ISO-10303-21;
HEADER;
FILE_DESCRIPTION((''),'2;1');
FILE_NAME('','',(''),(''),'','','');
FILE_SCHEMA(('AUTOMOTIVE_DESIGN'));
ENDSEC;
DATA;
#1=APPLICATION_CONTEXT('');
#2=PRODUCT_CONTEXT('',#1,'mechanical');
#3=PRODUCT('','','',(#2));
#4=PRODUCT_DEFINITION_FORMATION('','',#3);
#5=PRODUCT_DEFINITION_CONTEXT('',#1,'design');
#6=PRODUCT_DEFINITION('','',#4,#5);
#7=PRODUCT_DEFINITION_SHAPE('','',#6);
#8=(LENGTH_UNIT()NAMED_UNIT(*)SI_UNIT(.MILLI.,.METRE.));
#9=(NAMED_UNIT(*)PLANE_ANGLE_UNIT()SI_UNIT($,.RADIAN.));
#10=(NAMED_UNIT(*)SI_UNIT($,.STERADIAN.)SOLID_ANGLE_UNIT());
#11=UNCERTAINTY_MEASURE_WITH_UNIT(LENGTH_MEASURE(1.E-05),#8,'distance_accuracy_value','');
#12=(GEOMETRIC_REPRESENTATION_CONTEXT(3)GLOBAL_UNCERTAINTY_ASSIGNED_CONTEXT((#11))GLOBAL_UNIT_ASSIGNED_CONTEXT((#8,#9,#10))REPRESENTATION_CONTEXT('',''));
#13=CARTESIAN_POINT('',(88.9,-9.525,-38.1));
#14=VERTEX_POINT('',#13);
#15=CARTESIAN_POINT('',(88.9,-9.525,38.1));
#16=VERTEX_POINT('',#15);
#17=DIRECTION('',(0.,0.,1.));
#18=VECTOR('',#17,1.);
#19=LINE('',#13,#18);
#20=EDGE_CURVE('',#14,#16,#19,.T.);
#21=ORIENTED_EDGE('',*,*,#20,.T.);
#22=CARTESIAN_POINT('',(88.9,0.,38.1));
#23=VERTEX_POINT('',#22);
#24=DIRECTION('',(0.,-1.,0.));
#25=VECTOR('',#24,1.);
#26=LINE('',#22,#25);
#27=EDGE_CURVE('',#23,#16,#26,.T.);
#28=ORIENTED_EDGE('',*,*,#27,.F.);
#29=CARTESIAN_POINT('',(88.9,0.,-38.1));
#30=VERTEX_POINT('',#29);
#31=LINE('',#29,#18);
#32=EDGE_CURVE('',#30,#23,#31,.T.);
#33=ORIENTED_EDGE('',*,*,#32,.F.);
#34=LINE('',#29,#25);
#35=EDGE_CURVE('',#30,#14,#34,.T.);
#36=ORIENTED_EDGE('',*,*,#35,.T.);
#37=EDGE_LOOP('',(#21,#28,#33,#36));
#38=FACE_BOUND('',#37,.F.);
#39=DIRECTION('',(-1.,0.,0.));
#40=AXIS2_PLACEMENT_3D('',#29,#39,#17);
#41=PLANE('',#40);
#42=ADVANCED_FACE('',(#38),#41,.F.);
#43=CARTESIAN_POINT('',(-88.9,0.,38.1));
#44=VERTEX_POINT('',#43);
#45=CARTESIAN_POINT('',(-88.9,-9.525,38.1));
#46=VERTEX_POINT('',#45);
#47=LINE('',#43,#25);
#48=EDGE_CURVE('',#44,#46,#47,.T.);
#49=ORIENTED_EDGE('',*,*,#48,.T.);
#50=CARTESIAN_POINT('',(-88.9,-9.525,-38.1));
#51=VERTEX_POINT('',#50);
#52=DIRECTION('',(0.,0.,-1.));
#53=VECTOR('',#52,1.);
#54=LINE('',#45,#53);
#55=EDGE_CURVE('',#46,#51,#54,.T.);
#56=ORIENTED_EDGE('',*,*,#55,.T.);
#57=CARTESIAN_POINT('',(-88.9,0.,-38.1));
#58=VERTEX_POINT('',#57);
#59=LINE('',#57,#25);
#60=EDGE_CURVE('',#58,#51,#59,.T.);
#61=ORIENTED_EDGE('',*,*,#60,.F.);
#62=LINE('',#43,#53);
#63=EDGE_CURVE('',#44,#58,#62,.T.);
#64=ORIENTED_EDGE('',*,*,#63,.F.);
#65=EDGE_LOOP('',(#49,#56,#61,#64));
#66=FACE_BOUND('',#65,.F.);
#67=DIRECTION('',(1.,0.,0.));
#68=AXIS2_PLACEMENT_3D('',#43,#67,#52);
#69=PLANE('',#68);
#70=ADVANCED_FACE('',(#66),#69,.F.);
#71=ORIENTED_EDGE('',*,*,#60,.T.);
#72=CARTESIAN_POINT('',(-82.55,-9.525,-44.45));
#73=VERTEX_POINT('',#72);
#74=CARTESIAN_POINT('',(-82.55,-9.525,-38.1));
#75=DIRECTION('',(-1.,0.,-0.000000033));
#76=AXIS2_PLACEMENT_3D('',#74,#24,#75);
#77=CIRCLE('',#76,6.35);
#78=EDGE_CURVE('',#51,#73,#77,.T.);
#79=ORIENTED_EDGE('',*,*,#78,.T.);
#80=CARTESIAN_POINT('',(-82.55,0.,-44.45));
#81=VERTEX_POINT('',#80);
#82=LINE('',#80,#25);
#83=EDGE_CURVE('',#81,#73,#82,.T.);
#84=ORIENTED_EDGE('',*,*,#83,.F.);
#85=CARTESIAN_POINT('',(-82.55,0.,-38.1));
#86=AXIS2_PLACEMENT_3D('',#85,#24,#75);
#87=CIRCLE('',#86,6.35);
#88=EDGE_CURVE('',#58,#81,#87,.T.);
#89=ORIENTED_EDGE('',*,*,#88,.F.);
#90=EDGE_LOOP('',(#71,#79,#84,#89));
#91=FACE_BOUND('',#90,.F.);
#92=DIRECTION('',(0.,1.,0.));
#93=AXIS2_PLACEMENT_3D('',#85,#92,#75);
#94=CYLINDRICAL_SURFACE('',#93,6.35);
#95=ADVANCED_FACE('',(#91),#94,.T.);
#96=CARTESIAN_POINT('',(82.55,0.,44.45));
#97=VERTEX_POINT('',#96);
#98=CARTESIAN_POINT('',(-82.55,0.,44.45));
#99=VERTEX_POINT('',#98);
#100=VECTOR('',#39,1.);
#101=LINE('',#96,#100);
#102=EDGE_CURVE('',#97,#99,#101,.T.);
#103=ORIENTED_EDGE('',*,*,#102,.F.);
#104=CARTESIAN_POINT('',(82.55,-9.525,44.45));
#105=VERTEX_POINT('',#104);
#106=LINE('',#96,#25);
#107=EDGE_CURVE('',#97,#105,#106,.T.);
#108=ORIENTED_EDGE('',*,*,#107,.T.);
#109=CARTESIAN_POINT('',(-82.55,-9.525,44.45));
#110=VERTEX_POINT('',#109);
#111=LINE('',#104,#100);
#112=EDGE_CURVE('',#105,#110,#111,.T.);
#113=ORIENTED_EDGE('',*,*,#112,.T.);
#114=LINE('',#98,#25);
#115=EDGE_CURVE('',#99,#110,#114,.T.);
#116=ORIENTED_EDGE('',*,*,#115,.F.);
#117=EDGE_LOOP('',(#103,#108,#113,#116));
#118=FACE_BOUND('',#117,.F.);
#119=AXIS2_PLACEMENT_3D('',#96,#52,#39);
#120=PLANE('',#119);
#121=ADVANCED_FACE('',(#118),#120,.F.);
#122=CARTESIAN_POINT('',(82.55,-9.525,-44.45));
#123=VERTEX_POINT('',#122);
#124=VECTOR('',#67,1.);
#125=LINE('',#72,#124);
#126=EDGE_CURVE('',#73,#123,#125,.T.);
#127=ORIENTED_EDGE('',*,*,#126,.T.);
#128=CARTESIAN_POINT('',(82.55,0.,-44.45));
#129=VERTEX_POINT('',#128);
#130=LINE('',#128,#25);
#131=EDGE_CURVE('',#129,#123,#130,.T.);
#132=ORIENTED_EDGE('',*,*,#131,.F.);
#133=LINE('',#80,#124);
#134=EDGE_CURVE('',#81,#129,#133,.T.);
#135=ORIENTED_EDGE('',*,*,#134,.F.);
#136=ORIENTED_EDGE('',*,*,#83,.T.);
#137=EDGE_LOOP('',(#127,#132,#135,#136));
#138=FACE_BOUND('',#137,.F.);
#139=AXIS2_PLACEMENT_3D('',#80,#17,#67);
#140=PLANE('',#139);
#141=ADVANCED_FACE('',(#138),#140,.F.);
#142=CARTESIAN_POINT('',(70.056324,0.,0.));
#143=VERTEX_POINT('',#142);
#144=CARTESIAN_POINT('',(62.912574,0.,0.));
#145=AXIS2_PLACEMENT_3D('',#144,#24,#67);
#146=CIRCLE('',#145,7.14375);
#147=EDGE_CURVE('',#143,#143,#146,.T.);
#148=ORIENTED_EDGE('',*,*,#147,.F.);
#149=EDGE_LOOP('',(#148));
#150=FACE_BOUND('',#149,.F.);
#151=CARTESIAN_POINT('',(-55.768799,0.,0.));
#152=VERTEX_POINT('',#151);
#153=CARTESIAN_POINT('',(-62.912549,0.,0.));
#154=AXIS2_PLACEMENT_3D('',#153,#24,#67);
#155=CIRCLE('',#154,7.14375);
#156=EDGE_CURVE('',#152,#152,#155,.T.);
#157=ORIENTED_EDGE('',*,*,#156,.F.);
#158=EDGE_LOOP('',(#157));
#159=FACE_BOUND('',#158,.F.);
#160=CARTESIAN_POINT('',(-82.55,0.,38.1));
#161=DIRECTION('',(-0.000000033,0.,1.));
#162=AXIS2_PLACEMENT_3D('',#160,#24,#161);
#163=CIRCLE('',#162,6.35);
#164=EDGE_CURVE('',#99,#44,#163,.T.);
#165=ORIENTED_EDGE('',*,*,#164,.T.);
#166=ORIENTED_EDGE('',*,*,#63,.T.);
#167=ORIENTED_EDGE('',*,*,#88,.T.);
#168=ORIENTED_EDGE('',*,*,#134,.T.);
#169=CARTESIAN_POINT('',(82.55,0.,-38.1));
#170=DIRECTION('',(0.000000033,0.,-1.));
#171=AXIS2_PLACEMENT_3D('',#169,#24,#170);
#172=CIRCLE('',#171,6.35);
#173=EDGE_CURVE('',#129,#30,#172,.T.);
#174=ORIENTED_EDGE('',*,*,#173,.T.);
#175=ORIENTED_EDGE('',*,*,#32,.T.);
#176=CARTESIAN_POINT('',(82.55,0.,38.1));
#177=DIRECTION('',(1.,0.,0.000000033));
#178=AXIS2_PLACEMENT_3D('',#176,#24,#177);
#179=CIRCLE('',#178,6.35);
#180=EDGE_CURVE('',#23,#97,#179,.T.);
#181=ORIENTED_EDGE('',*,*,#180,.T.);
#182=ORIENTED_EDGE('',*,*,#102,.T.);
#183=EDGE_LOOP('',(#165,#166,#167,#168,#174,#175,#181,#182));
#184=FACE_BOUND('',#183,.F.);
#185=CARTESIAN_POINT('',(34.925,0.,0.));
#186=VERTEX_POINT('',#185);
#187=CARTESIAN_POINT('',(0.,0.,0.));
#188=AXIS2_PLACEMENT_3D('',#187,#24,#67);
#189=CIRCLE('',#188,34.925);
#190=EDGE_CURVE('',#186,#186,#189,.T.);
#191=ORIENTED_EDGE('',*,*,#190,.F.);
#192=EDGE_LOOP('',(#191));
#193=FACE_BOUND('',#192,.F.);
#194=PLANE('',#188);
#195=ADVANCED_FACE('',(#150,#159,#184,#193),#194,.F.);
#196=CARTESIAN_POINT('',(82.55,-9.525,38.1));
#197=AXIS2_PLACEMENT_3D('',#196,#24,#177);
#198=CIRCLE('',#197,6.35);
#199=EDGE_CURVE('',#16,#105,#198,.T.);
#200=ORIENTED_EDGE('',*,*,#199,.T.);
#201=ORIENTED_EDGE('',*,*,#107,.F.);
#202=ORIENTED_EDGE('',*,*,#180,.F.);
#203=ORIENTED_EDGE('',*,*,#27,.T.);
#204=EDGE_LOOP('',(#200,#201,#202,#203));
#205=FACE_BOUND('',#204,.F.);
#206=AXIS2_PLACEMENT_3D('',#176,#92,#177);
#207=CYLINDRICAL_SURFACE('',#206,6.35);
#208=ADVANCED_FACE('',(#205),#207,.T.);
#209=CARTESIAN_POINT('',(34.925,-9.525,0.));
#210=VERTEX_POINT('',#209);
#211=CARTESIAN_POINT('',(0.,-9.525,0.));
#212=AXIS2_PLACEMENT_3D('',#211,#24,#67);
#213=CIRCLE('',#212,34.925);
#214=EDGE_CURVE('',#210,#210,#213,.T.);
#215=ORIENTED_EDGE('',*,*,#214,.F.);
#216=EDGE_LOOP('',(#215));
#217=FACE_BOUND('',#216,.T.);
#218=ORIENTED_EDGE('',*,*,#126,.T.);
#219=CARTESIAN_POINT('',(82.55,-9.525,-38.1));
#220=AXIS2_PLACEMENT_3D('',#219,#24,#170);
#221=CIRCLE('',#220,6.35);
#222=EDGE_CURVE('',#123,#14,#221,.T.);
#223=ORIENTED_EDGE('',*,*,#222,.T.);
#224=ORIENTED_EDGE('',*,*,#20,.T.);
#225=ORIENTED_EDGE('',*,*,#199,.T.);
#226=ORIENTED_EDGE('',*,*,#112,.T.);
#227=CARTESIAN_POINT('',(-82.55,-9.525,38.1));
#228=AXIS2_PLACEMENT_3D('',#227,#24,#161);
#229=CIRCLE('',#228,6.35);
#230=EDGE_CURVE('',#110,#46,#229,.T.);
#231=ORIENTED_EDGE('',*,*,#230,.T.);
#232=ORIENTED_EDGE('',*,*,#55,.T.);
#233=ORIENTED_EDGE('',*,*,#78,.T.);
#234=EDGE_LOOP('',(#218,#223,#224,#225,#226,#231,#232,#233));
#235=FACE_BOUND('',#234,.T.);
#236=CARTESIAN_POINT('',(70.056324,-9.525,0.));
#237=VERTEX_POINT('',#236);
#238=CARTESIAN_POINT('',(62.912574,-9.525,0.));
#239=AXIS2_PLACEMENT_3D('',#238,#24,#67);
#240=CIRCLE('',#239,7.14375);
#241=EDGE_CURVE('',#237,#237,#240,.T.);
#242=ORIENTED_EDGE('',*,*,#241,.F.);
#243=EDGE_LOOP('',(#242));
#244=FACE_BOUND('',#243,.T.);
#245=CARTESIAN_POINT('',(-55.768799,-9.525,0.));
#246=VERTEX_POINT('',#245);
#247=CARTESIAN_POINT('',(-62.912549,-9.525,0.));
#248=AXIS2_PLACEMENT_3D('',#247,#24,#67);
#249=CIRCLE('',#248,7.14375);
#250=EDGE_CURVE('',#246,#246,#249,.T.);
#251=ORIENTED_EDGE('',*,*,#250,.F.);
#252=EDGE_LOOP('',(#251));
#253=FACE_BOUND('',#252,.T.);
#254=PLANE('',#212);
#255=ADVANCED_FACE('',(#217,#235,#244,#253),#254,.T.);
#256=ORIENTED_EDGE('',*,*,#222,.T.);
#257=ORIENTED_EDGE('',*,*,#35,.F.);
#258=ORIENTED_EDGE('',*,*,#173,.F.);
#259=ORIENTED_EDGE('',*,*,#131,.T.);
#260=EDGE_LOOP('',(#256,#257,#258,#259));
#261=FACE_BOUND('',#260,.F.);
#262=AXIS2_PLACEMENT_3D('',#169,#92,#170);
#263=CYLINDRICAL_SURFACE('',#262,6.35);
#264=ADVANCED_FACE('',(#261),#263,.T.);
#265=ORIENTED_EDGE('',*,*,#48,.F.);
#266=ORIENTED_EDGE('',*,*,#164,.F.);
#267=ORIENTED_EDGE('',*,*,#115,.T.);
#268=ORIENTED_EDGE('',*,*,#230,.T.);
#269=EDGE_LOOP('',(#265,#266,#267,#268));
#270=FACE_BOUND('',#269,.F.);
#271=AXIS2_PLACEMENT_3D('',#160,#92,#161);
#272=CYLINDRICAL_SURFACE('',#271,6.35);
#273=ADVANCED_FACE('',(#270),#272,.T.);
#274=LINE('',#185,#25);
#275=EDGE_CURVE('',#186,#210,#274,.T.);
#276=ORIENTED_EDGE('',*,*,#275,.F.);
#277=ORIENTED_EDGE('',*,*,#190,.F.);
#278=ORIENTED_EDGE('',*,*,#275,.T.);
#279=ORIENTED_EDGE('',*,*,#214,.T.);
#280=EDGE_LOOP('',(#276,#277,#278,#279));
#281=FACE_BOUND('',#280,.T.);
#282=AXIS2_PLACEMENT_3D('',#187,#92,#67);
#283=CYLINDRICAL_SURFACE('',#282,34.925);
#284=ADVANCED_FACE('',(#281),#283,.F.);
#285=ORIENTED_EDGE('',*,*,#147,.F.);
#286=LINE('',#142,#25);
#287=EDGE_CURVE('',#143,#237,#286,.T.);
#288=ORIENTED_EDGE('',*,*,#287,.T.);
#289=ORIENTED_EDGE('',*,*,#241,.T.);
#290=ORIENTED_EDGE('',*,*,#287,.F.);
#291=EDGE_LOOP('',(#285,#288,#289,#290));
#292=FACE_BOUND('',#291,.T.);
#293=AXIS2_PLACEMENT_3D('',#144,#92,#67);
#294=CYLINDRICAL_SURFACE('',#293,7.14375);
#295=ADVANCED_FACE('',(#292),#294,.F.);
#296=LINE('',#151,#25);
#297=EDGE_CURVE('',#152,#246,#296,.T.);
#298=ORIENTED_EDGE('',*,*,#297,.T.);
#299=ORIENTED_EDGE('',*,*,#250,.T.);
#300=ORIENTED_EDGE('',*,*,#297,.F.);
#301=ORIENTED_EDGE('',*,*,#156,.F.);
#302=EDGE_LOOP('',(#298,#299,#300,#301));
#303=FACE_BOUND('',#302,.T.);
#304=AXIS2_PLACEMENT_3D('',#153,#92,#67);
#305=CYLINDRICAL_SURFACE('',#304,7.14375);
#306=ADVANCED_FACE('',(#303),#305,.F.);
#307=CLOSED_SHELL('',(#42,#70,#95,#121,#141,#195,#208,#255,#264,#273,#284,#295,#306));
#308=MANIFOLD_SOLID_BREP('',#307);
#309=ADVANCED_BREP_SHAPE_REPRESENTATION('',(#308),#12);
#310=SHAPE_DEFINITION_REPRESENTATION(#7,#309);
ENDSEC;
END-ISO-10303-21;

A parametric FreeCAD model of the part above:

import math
import FreeCAD as App
import Part
import Sketcher
Q = App.Units.Quantity

doc = App.newDocument("Part")
body = doc.addObject("PartDesign::Body", "Body")

# Sketch on XZ plane
sketch1 = doc.addObject("Sketcher::SketchObject", "Sketch")
body.addObject(sketch1)
sketch1.AttachmentSupport = (doc.XZ_Plane, [""])
sketch1.MapMode = "FlatFace"
sketch1.addGeometry([
    Part.ArcOfCircle(Part.Circle(App.Vector(82.55, 38.1, 0), App.Vector(0, 0, 1), 6.35), math.radians(0.000002), math.radians(89.999998)),  # 0
    Part.LineSegment(App.Vector(82.55, 44.45, 0), App.Vector(-82.55, 44.45, 0)),  # 1
    Part.ArcOfCircle(Part.Circle(App.Vector(-82.55, 38.1, 0), App.Vector(0, 0, 1), 6.35), math.radians(90.000002), math.radians(179.999998)),  # 2
    Part.LineSegment(App.Vector(-88.9, 38.1, 0), App.Vector(-88.9, -38.1, 0)),  # 3
    Part.ArcOfCircle(Part.Circle(App.Vector(-82.55, -38.1, 0), App.Vector(0, 0, 1), 6.35), math.radians(-179.999998), math.radians(-90.000002)),  # 4
    Part.LineSegment(App.Vector(-82.55, -44.45, 0), App.Vector(82.55, -44.45, 0)),  # 5
    Part.ArcOfCircle(Part.Circle(App.Vector(82.55, -38.1, 0), App.Vector(0, 0, 1), 6.35), math.radians(-89.999998), math.radians(-0.000002)),  # 6
    Part.LineSegment(App.Vector(88.9, -38.1, 0), App.Vector(88.9, 38.1, 0)),  # 7
    Part.Circle(App.Vector(-62.912549, 0, 0), App.Vector(0, 0, 1), 7.14375),  # 8
    Part.Circle(App.Vector(0, 0, 0), App.Vector(0, 0, 1), 34.925),  # 9
    Part.Circle(App.Vector(62.912574, 0, 0), App.Vector(0, 0, 1), 7.14375),  # 10
], False)
sketch1.addConstraint([
    Sketcher.Constraint("Tangent", 0, 2, 1, 1),
    Sketcher.Constraint("Tangent", 1, 2, 2, 1),
    Sketcher.Constraint("Tangent", 2, 2, 3, 1),
    Sketcher.Constraint("Tangent", 3, 2, 4, 1),
    Sketcher.Constraint("Tangent", 4, 2, 5, 1),
    Sketcher.Constraint("Tangent", 5, 2, 6, 1),
    Sketcher.Constraint("Tangent", 6, 2, 7, 1),
    Sketcher.Constraint("Tangent", 7, 2, 0, 1),
    Sketcher.Constraint("Horizontal", 1),
    Sketcher.Constraint("Vertical", 3),
    Sketcher.Constraint("Horizontal", 5),
    Sketcher.Constraint("Vertical", 7),
    Sketcher.Constraint("Coincident", 9, 3, -1, 1),
    Sketcher.Constraint("Equal", 0, 2),
    Sketcher.Constraint("Equal", 2, 4),
    Sketcher.Constraint("Equal", 4, 6),
    Sketcher.Constraint("Equal", 8, 10),
    Sketcher.Constraint("Symmetric", 0, 3, 4, 3, -1, 1),
    Sketcher.Constraint("PointOnObject", 8, 3, -1),
    Sketcher.Constraint("PointOnObject", 10, 3, -1),
    Sketcher.Constraint("Diameter", 9, Q("2.75 in")),
    Sketcher.Constraint("DistanceY", 3, 2, 3, 1, Q("3 in")),
    Sketcher.Constraint("Radius", 0, Q("0.25 in")),
    Sketcher.Constraint("Diameter", 8, Q("0.5625 in")),
    Sketcher.Constraint("DistanceX", 1, 2, 1, 1, Q("6.5 in")),
    Sketcher.Constraint("DistanceX", 8, 3, -1, 1, 62.912549),
    Sketcher.Constraint("DistanceX", -1, 1, 10, 3, 62.912574),
])
pad1 = doc.addObject("PartDesign::Pad", "Pad")
body.addObject(pad1)
pad1.Profile = sketch1
pad1.Length = Q("0.375 in")

doc.recompute()
